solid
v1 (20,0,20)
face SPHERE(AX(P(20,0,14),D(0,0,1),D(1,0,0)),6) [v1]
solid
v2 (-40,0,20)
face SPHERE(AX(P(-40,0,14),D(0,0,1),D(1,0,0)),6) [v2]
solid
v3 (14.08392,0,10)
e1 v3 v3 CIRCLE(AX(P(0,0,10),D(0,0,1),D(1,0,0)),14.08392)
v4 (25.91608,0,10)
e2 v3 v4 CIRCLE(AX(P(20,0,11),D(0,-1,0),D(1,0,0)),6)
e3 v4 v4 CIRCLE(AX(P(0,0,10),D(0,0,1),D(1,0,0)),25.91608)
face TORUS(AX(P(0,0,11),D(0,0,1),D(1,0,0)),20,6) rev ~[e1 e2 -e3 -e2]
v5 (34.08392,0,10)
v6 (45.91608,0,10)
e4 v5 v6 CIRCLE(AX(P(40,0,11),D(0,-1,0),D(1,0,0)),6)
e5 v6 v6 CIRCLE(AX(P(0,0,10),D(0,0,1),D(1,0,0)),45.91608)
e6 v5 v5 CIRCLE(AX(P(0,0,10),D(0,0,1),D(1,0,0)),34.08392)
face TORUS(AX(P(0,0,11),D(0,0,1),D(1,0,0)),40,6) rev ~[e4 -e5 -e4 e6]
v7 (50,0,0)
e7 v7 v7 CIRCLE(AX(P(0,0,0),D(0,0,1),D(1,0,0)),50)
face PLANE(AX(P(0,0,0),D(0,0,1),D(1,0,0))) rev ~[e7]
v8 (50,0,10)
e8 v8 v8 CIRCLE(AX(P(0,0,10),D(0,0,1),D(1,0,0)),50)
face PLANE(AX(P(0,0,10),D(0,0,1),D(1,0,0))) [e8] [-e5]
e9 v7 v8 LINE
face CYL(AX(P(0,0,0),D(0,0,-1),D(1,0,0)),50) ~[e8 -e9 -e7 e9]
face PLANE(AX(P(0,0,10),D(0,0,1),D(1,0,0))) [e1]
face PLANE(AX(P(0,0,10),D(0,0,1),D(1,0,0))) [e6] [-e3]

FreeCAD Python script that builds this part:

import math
import FreeCAD as App
import Part
import Sketcher

doc = App.newDocument("Part")
body = doc.addObject("PartDesign::Body", "Body")

sketch1 = body.newObject("Sketcher::SketchObject", "Sketch")
sketch1.AttachmentSupport = (doc.getObject("XZ_Plane"), [""])
sketch1.MapMode = "FlatFace"
sketch1.addGeometry(Part.Circle(App.Vector(20, 11, 0), App.Vector(0, 0, 1), 6), False)
sketch1.addConstraint([
    Sketcher.Constraint("Diameter", 0, 12.0),
    Sketcher.Constraint("DistanceX", -1, 1, 0, 3, 20.0),
    Sketcher.Constraint("DistanceY", -1, 1, 0, 3, 11.0),
])
revolution = body.newObject("PartDesign::Revolution", "Revolution")
revolution.Profile = sketch1
revolution.ReferenceAxis = (sketch1, ["V_Axis"])
revolution.Angle = 360
body2 = doc.addObject("PartDesign::Body", "Body001")

sketch2 = body2.newObject("Sketcher::SketchObject", "Sketch001")
sketch2.AttachmentSupport = (doc.getObject("XZ_Plane001"), [""])
sketch2.MapMode = "FlatFace"
sketch2.addGeometry(Part.Circle(App.Vector(40, 11, 0), App.Vector(0, 0, 1), 6), False)
sketch2.addConstraint([
    Sketcher.Constraint("Diameter", 0, 12.0),
    Sketcher.Constraint("DistanceX", -1, 1, 0, 3, 40.0),
    Sketcher.Constraint("DistanceY", -1, 1, 0, 3, 11.0),
])
revolution2 = body2.newObject("PartDesign::Revolution", "Revolution001")
revolution2.Profile = sketch2
revolution2.ReferenceAxis = (sketch2, ["V_Axis"])
revolution2.Angle = 360
body3 = doc.addObject("PartDesign::Body", "Body002")

sketch3 = body3.newObject("Sketcher::SketchObject", "Sketch002")
sketch3.AttachmentSupport = (doc.getObject("XY_Plane002"), [""])
sketch3.MapMode = "FlatFace"
sketch3.addGeometry(Part.Circle(App.Vector(0, 0, 0), App.Vector(0, 0, 1), 50), False)
sketch3.addConstraint([
    Sketcher.Constraint("Coincident", 0, 3, -1, 1),
    Sketcher.Constraint("Diameter", 0, 100.0),
])
pad1 = body3.newObject("PartDesign::Pad", "Pad")
pad1.Profile = sketch3
pad1.Length = 10
doc.recompute()

boolean = body3.newObject("PartDesign::Boolean", "Boolean")
boolean.Type = "Cut"
boolean.addObjects([body2])
doc.recompute()

boolean2 = body3.newObject("PartDesign::Boolean", "Boolean001")
boolean2.Type = "Cut"
boolean2.addObjects([body])
body4 = doc.addObject("PartDesign::Body", "Body003")

sketch4 = body4.newObject("Sketcher::SketchObject", "Sketch003")
sketch4.AttachmentSupport = (doc.getObject("XZ_Plane003"), [""])
sketch4.MapMode = "FlatFace"
sketch4.addGeometry([
    Part.ArcOfCircle(Part.Circle(App.Vector(20, 14, 0), App.Vector(0, 0, 1), 6), math.radians(-90), math.radians(90)),
    Part.LineSegment(App.Vector(20, 20, 0), App.Vector(20, 8, 0)),
], False)
sketch4.addGeometry(Part.LineSegment(App.Vector(20, 8, 0), App.Vector(20, 20, 0)), True)
sketch4.addConstraint([
    Sketcher.Constraint("Coincident", 0, 1, 1, 2),
    Sketcher.Constraint("Coincident", 1, 1, 0, 2),
    Sketcher.Constraint("Vertical", 1),
    Sketcher.Constraint("Vertical", 2),
    Sketcher.Constraint("Coincident", 2, 1, 0, 1),
    Sketcher.Constraint("Equal", 1, 2),
    Sketcher.Constraint("Radius", 0, 6.0),
    Sketcher.Constraint("DistanceX", -1, 1, 0, 3, 20.0),
    Sketcher.Constraint("DistanceY", -1, 1, 0, 3, 14.0),
    Sketcher.Constraint("DistanceX", -1, 1, 0, 1, 20.0),
])
revolution3 = body4.newObject("PartDesign::Revolution", "Revolution002")
revolution3.Profile = sketch4
revolution3.ReferenceAxis = (sketch4, ["Axis0"])
revolution3.Angle = 360
body5 = doc.addObject("PartDesign::Body", "Body004")

sketch5 = body5.newObject("Sketcher::SketchObject", "Sketch004")
sketch5.AttachmentSupport = (doc.getObject("XZ_Plane004"), [""])
sketch5.MapMode = "FlatFace"
sketch5.addGeometry([
    Part.ArcOfCircle(Part.Circle(App.Vector(-40, 14, 0), App.Vector(0, 0, 1), 6), math.radians(-90), math.radians(90)),
    Part.LineSegment(App.Vector(-40, 20, 0), App.Vector(-40, 8, 0)),
], False)
sketch5.addGeometry(Part.LineSegment(App.Vector(-40, 8, 0), App.Vector(-40, 20, 0)), True)
sketch5.addConstraint([
    Sketcher.Constraint("Coincident", 0, 1, 1, 2),
    Sketcher.Constraint("Coincident", 1, 1, 0, 2),
    Sketcher.Constraint("Vertical", 1),
    Sketcher.Constraint("Vertical", 2),
    Sketcher.Constraint("Coincident", 2, 1, 0, 1),
    Sketcher.Constraint("Equal", 1, 2),
    Sketcher.Constraint("Radius", 0, 6.0),
    Sketcher.Constraint("DistanceX", 0, 3, -1, 1, 40.0),
    Sketcher.Constraint("DistanceY", -1, 1, 0, 3, 14.0),
    Sketcher.Constraint("DistanceX", 0, 1, -1, 1, 40.0),
])
revolution4 = body5.newObject("PartDesign::Revolution", "Revolution003")
revolution4.Profile = sketch5
revolution4.ReferenceAxis = (sketch5, ["Axis0"])
revolution4.Angle = 360

doc.recompute()
